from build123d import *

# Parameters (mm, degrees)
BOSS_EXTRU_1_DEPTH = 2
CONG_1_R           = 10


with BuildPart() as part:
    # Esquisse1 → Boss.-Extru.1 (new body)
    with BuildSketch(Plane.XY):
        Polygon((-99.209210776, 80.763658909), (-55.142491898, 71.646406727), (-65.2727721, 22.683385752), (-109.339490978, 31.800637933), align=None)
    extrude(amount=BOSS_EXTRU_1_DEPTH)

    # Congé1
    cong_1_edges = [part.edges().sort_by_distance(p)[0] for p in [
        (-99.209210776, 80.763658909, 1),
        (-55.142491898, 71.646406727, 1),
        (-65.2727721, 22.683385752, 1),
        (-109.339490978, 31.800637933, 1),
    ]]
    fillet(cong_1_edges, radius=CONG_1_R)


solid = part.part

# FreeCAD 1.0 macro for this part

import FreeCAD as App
import Part
import Sketcher
Q = App.Units.Quantity


def edges_at(feature, points):
    """Names of the edges that pass closest to the given points."""
    edges = feature.Shape.Edges
    near = lambda p: min(range(len(edges)), key=lambda i: edges[i].distToShape(Part.Vertex(*p))[0])
    return sorted({f"Edge{near(p) + 1}" for p in points})


def add_polygon(sketch, points):
    """Adds a closed chain of lines whose ends are joined by coincident constraints."""
    first, n = sketch.GeometryCount, len(points)
    for a, b in zip(points, points[1:] + points[:1]):
        sketch.addGeometry(Part.LineSegment(App.Vector(*a, 0), App.Vector(*b, 0)), False)
    for i in range(n):
        sketch.addConstraint(Sketcher.Constraint("Coincident", first + i, 2, first + (i + 1) % n, 1))

doc = App.newDocument("Part")
body = doc.addObject("PartDesign::Body", "Body")

# Sketch on XY plane
sketch1 = body.newObject("Sketcher::SketchObject", "Sketch")
sketch1.AttachmentSupport = (doc.getObject("XY_Plane"), [""])
sketch1.MapMode = "FlatFace"
add_polygon(sketch1, [(-55, 72), (-99, 81), (-109, 32), (-65, 23)])  # lines 0-3
sketch1.addConstraint([
    Sketcher.Constraint("Perpendicular", 0, 1),
    Sketcher.Constraint("Perpendicular", 1, 2),
    Sketcher.Constraint("Perpendicular", 2, 3),
    Sketcher.Constraint("Distance", 0, Q("45 mm")),
    Sketcher.Constraint("Distance", 1, Q("50 mm")),
    Sketcher.Constraint("DistanceX", 1, 2, 3, 2, Q("54.196999 mm")),
    Sketcher.Constraint("DistanceX", 0, 2, -1, 1, Q("99.209211 mm")),
    Sketcher.Constraint("DistanceY", -1, 1, 0, 2, Q("80.763659 mm")),
])
pad1 = body.newObject("PartDesign::Pad", "Pad")
pad1.Profile = sketch1
pad1.Length = 2
doc.recompute()

fillet = body.newObject("PartDesign::Fillet", "Fillet")
fillet.Base = (pad1, edges_at(pad1, [
    (-99.209, 80.764, 1),
    (-55.142, 71.646, 1),
    (-65.273, 22.683, 1),
    (-109.339, 31.801, 1),
]))
fillet.Radius = 10

doc.recompute()
